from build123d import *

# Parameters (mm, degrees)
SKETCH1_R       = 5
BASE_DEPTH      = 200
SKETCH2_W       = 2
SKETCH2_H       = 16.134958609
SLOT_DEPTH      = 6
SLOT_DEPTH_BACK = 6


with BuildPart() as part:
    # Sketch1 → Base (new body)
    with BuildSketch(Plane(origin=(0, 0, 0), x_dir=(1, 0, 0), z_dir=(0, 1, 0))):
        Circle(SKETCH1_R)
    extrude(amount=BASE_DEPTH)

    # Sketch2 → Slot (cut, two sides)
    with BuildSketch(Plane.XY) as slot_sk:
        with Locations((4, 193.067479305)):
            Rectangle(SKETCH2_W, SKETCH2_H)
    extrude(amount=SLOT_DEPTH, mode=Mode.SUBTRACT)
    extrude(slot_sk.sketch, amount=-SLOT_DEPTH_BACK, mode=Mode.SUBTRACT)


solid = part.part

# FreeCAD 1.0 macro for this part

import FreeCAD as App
import Part
import Sketcher

doc = App.newDocument("Part")
params = doc.addObject("Spreadsheet::Sheet", "Params")
for row, (alias, value) in enumerate([
    ("sketch1_diameter", "10 mm"),
    ("pad1_length", "200 mm"),
    ("sketch2_width", "2 mm"),
], start=1):
    params.set(f"A{row}", alias)
    params.set(f"B{row}", "=" + value)
    params.setAlias(f"B{row}", alias)

body = doc.addObject("PartDesign::Body", "Body")

sketch1 = body.newObject("Sketcher::SketchObject", "Sketch")
sketch1.AttachmentSupport = (doc.getObject("XZ_Plane"), [""])
sketch1.MapMode = "FlatFace"
sketch1.addGeometry(Part.Circle(App.Vector(0, 0, 0), App.Vector(0, 0, 1), 5), False)
sketch1.addConstraint(Sketcher.Constraint("Coincident", 0, 3, -1, 1))
sketch1.addConstraint(Sketcher.Constraint("Diameter", 0, 10.0))
sketch1.setExpression("Constraints[1]", "Params.sketch1_diameter")
pad1 = body.newObject("PartDesign::Pad", "Pad")
pad1.Profile = sketch1
pad1.setExpression("Length", "Params.pad1_length")
pad1.Reversed = True

sketch2 = body.newObject("Sketcher::SketchObject", "Sketch001")
sketch2.AttachmentSupport = (doc.getObject("XY_Plane"), [""])
sketch2.MapMode = "FlatFace"
sketch2.addGeometry(Part.LineSegment(App.Vector(3, 201.1, 0), App.Vector(3, 185, 0)), False)
sketch2.addGeometry(Part.LineSegment(App.Vector(3, 185, 0), App.Vector(5, 185, 0)), False)
sketch2.addGeometry(Part.LineSegment(App.Vector(5, 185, 0), App.Vector(5, 201.1, 0)), False)
sketch2.addGeometry(Part.LineSegment(App.Vector(5, 201.1, 0), App.Vector(3, 201.1, 0)), False)
sketch2.addConstraint(Sketcher.Constraint("Coincident", 0, 2, 1, 1))
sketch2.addConstraint(Sketcher.Constraint("Coincident", 1, 2, 2, 1))
sketch2.addConstraint(Sketcher.Constraint("Coincident", 2, 2, 3, 1))
sketch2.addConstraint(Sketcher.Constraint("Coincident", 3, 2, 0, 1))
sketch2.addConstraint(Sketcher.Constraint("Vertical", 0))
sketch2.addConstraint(Sketcher.Constraint("Horizontal", 1))
sketch2.addConstraint(Sketcher.Constraint("Vertical", 2))
sketch2.addConstraint(Sketcher.Constraint("Horizontal", 3))
sketch2.addConstraint(Sketcher.Constraint("DistanceX", 1, 1, 1, 2, 2.0))
sketch2.addConstraint(Sketcher.Constraint("DistanceX", -1, 1, 0, 2, 3.0))
sketch2.addConstraint(Sketcher.Constraint("DistanceY", -1, 1, 0, 2, 185.0))
sketch2.addConstraint(Sketcher.Constraint("DistanceY", 0, 2, 0, 1, 16.134959))
sketch2.setExpression("Constraints[8]", "Params.sketch2_width")
pocket1 = body.newObject("PartDesign::Pocket", "Pocket")
pocket1.Profile = sketch2
pocket1.Type = "ThroughAll"
pocket1.Midplane = True

doc.recompute()
